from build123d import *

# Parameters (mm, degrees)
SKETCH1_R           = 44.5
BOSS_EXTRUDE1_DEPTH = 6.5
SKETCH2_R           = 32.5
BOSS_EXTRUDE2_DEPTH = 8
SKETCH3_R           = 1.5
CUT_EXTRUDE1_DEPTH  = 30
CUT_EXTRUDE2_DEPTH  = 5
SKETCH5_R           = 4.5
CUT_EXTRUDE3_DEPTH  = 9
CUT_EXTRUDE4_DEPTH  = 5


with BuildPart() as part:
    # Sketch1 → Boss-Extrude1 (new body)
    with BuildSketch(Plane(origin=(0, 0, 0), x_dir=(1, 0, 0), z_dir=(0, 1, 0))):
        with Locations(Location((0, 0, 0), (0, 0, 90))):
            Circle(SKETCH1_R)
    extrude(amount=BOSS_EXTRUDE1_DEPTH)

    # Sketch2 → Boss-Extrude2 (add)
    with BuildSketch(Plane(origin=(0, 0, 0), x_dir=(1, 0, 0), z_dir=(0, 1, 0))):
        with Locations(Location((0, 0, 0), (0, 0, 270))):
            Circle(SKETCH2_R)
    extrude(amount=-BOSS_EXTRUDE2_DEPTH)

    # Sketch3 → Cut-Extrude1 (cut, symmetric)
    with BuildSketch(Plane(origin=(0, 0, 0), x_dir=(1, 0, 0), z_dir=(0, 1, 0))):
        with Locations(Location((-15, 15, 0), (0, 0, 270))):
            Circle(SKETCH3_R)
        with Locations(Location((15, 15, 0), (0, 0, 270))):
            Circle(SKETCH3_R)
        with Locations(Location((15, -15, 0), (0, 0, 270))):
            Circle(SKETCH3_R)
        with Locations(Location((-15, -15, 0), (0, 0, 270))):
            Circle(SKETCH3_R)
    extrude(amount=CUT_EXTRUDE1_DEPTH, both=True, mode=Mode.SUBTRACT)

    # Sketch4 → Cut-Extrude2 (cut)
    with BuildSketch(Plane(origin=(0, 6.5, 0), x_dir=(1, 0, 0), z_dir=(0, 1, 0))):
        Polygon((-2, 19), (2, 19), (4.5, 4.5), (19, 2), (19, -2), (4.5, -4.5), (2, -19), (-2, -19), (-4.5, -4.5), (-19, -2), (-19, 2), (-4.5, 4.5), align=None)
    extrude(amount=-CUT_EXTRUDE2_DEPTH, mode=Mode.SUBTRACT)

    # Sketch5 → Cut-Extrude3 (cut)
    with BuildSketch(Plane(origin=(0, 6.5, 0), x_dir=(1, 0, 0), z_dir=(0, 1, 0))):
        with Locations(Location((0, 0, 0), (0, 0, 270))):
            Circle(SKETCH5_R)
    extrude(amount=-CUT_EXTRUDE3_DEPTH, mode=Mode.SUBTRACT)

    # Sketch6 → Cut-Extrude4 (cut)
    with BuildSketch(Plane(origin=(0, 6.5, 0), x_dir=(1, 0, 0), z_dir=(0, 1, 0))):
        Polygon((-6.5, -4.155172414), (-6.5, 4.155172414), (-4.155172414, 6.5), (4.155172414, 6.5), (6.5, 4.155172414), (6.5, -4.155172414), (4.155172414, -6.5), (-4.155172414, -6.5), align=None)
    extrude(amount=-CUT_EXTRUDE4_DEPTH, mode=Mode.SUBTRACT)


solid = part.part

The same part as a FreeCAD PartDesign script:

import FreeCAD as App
import Part
import Sketcher
from FreeCAD import Vector


def add_polygon(sketch, points):
    """Adds a closed chain of lines whose ends are joined by coincident constraints."""
    first, n = sketch.GeometryCount, len(points)
    for a, b in zip(points, points[1:] + points[:1]):
        sketch.addGeometry(Part.LineSegment(App.Vector(*a, 0), App.Vector(*b, 0)), False)
    for i in range(n):
        sketch.addConstraint(Sketcher.Constraint("Coincident", first + i, 2, first + (i + 1) % n, 1))

doc = App.newDocument("Part")
body = doc.addObject("PartDesign::Body", "Body")

sketch1 = body.newObject("Sketcher::SketchObject", "Sketch")
sketch1.AttachmentSupport = (doc.getObject("XZ_Plane"), [""])
sketch1.MapMode = "FlatFace"
sketch1.addGeometry(Part.Circle(Vector(0, 0, 0), Vector(0, 0, 1), 44), False)
sketch1.addConstraint(Sketcher.Constraint("Coincident", 0, 3, -1, 1))
sketch1.addConstraint(Sketcher.Constraint("Diameter", 0, 89.0))
pad1 = body.newObject("PartDesign::Pad", "Pad")
pad1.Profile = sketch1
pad1.Length = 6.5
pad1.Reversed = True

sketch2 = body.newObject("Sketcher::SketchObject", "Sketch001")
sketch2.AttachmentSupport = (doc.getObject("XZ_Plane"), [""])
sketch2.MapMode = "FlatFace"
sketch2.addGeometry(Part.Circle(Vector(0, 0, 0), Vector(0, 0, 1), 32), False)
sketch2.addConstraint(Sketcher.Constraint("Coincident", 0, 3, -1, 1))
sketch2.addConstraint(Sketcher.Constraint("Diameter", 0, 65.0))
pad2 = body.newObject("PartDesign::Pad", "Pad001")
pad2.Profile = sketch2
pad2.Length = 8

sketch3 = body.newObject("Sketcher::SketchObject", "Sketch002")
sketch3.AttachmentSupport = (doc.getObject("XZ_Plane"), [""])
sketch3.MapMode = "FlatFace"
sketch3.addGeometry(Part.Circle(Vector(-15, -15, 0), Vector(0, 0, 1), 1.5), False)
sketch3.addGeometry(Part.Circle(Vector(15, -15, 0), Vector(0, 0, 1), 1.5), False)
sketch3.addGeometry(Part.Circle(Vector(15, 15, 0), Vector(0, 0, 1), 1.5), False)
sketch3.addGeometry(Part.Circle(Vector(-15, 15, 0), Vector(0, 0, 1), 1.5), False)
sketch3.addConstraint(Sketcher.Constraint("Equal", 0, 1))
sketch3.addConstraint(Sketcher.Constraint("Equal", 1, 2))
sketch3.addConstraint(Sketcher.Constraint("Equal", 2, 3))
sketch3.addConstraint(Sketcher.Constraint("Symmetric", 0, 3, 2, 3, -1, 1))
sketch3.addConstraint(Sketcher.Constraint("Symmetric", 1, 3, 3, 3, -1, 1))
sketch3.addConstraint(Sketcher.Constraint("Symmetric", 0, 3, 1, 3, -2))
sketch3.addConstraint(Sketcher.Constraint("Diameter", 0, 3.0))
sketch3.addConstraint(Sketcher.Constraint("DistanceX", 0, 3, -1, 1, 15.0))
sketch3.addConstraint(Sketcher.Constraint("DistanceY", 0, 3, -1, 1, 15.0))
pocket1 = body.newObject("PartDesign::Pocket", "Pocket")
pocket1.Profile = sketch3
pocket1.Length = 60
pocket1.Midplane = True

sketch4 = body.newObject("Sketcher::SketchObject", "Sketch003")
sketch4.AttachmentSupport = (doc.getObject("XZ_Plane"), [""])
sketch4.MapMode = "FlatFace"
sketch4.AttachmentOffset = App.Placement(Vector(0, 0, -6.5), App.Rotation())
add_polygon(sketch4, [(2, -19), (-2, -19), (-4.5, -4.5), (-19, -2), (-19, 2), (-4.5, 4.5), (-2, 19), (2, 19), (4.5, 4.5), (19, 2), (19, -2), (4.5, -4.5)])
sketch4.addConstraint(Sketcher.Constraint("Horizontal", 0))
sketch4.addConstraint(Sketcher.Constraint("Vertical", 3))
sketch4.addConstraint(Sketcher.Constraint("Horizontal", 6))
sketch4.addConstraint(Sketcher.Constraint("Vertical", 9))
sketch4.addConstraint(Sketcher.Constraint("Symmetric", 0, 2, 6, 2, -1, 1))
sketch4.addConstraint(Sketcher.Constraint("Symmetric", 1, 2, 7, 2, -1, 1))
sketch4.addConstraint(Sketcher.Constraint("Symmetric", 2, 2, 8, 2, -1, 1))
sketch4.addConstraint(Sketcher.Constraint("Symmetric", 4, 2, 10, 2, -1, 1))
sketch4.addConstraint(Sketcher.Constraint("Symmetric", 4, 2, 7, 2, -2))
sketch4.addConstraint(Sketcher.Constraint("Perpendicular", 1, 4))
sketch4.addConstraint(Sketcher.Constraint("Perpendicular", 2, 5))
sketch4.addConstraint(Sketcher.Constraint("Perpendicular", 7, 10))
sketch4.addConstraint(Sketcher.Constraint("Perpendicular", 8, 11))
sketch4.addConstraint(Sketcher.Constraint("Horizontal", 3, 2, 8, 2))
sketch4.addConstraint(Sketcher.Constraint("Equal", 6, 3))
sketch4.addConstraint(Sketcher.Constraint("Equal", 1, 2))
sketch4.addConstraint(Sketcher.Constraint("DistanceX", 0, 2, 0, 1, 4.0))
sketch4.addConstraint(Sketcher.Constraint("DistanceY", 0, 2, -1, 1, 19.0))
sketch4.addConstraint(Sketcher.Constraint("DistanceY", 1, 2, 4, 2, 9.0))
pocket2 = body.newObject("PartDesign::Pocket", "Pocket001")
pocket2.Profile = sketch4
pocket2.Length = 5
pocket2.Reversed = True

sketch5 = body.newObject("Sketcher::SketchObject", "Sketch004")
sketch5.AttachmentSupport = (doc.getObject("XZ_Plane"), [""])
sketch5.MapMode = "FlatFace"
sketch5.AttachmentOffset = App.Placement(Vector(0, 0, -6.5), App.Rotation())
sketch5.addGeometry(Part.Circle(Vector(0, 0, 0), Vector(0, 0, 1), 4.5), False)
sketch5.addConstraint(Sketcher.Constraint("Coincident", 0, 3, -1, 1))
sketch5.addConstraint(Sketcher.Constraint("Diameter", 0, 9.0))
pocket3 = body.newObject("PartDesign::Pocket", "Pocket002")
pocket3.Profile = sketch5
pocket3.Length = 9
pocket3.Reversed = True

sketch6 = body.newObject("Sketcher::SketchObject", "Sketch005")
sketch6.AttachmentSupport = (doc.getObject("XZ_Plane"), [""])
sketch6.MapMode = "FlatFace"
sketch6.AttachmentOffset = App.Placement(Vector(0, 0, -6.5), App.Rotation())
add_polygon(sketch6, [(-6.5, -4.2), (-6.5, 4.2), (-4.2, 6.5), (4.2, 6.5), (6.5, 4.2), (6.5, -4.2), (4.2, -6.5), (-4.2, -6.5)])
sketch6.addConstraint(Sketcher.Constraint("Vertical", 0))
sketch6.addConstraint(Sketcher.Constraint("Horizontal", 2))
sketch6.addConstraint(Sketcher.Constraint("Vertical", 4))
sketch6.addConstraint(Sketcher.Constraint("Horizontal", 6))
sketch6.addConstraint(Sketcher.Constraint("Symmetric", 0, 2, 4, 2, -1, 1))
sketch6.addConstraint(Sketcher.Constraint("Symmetric", 1, 2, 5, 2, -1, 1))
sketch6.addConstraint(Sketcher.Constraint("Perpendicular", 1, 3))
sketch6.addConstraint(Sketcher.Constraint("Perpendicular", 5, 7))
sketch6.addConstraint(Sketcher.Constraint("Horizontal", 0, 2, 3, 2))
sketch6.addConstraint(Sketcher.Constraint("Horizontal", 4, 2, 7, 2))
sketch6.addConstraint(Sketcher.Constraint("Vertical", 2, 2, 5, 2))
sketch6.addConstraint(Sketcher.Constraint("Equal", 6, 0))
sketch6.addConstraint(Sketcher.Constraint("DistanceX", 0, 2, 3, 2, 13.0))
sketch6.addConstraint(Sketcher.Constraint("DistanceX", 2, 1, 2, 2, 8.310345))
pocket4 = body.newObject("PartDesign::Pocket", "Pocket003")
pocket4.Profile = sketch6
pocket4.Length = 5
pocket4.Reversed = True

doc.recompute()
